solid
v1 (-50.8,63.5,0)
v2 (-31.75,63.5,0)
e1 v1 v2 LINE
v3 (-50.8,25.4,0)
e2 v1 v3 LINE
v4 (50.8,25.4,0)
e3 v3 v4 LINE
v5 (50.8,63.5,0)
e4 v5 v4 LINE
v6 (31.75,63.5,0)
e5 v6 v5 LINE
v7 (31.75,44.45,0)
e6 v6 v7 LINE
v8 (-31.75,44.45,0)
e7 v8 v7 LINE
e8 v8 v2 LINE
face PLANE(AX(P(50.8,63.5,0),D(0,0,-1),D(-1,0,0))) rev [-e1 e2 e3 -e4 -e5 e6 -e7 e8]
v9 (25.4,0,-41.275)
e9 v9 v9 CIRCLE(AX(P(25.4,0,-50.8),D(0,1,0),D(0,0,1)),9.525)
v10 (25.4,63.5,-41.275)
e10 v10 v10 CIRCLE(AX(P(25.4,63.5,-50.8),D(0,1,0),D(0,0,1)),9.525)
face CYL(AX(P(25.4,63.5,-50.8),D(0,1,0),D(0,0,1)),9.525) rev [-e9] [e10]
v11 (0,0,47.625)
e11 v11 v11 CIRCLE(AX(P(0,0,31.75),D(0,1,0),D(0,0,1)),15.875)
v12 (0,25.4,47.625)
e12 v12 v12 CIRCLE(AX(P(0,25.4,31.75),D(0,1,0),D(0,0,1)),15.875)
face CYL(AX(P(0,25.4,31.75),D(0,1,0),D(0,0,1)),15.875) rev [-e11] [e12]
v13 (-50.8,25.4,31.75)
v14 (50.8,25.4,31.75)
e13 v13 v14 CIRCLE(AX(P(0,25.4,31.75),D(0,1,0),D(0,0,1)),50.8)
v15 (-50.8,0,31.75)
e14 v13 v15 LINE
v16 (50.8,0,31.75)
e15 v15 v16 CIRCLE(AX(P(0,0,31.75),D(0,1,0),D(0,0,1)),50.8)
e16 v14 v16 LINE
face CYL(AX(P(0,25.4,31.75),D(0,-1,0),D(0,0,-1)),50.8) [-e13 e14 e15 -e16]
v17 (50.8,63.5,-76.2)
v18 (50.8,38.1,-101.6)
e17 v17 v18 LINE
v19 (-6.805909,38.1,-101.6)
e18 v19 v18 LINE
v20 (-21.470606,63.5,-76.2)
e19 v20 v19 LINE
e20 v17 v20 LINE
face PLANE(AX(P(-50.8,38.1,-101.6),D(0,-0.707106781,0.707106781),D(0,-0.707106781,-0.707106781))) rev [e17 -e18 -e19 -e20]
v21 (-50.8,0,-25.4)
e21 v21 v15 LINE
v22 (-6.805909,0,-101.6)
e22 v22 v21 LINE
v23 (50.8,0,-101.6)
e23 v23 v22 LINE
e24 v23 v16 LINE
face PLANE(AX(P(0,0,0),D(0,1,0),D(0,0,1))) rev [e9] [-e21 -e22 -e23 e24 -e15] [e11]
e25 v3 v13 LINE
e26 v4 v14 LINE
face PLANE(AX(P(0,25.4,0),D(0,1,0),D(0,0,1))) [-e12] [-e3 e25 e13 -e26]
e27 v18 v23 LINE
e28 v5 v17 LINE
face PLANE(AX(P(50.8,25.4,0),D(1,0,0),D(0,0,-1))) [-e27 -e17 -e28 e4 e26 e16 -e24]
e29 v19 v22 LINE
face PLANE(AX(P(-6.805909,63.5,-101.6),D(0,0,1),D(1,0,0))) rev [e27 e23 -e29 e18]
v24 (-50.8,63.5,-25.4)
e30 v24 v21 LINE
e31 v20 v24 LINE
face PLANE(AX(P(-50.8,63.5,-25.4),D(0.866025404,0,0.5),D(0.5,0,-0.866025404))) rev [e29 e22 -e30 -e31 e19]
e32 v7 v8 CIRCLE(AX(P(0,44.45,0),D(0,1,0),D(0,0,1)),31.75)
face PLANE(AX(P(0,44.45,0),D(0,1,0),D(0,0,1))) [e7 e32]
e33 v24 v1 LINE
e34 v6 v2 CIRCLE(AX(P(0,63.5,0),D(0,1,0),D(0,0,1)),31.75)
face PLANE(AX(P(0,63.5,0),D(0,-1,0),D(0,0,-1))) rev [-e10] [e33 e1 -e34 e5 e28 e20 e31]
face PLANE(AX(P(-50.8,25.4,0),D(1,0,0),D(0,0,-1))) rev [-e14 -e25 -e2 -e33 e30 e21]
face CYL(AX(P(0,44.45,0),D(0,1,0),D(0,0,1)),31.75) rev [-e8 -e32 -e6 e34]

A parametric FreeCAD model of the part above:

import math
import FreeCAD as App
import Part
import Sketcher
from FreeCAD import Vector
Q = App.Units.Quantity


def add_polygon(sketch, points):
    """Adds a closed chain of lines whose ends are joined by coincident constraints."""
    first, n = sketch.GeometryCount, len(points)
    for a, b in zip(points, points[1:] + points[:1]):
        sketch.addGeometry(Part.LineSegment(App.Vector(*a, 0), App.Vector(*b, 0)), False)
    for i in range(n):
        sketch.addConstraint(Sketcher.Constraint("Coincident", first + i, 2, first + (i + 1) % n, 1))

doc = App.newDocument("Part")
body = doc.addObject("PartDesign::Body", "Body")

# Sketch on XZ plane
sketch1 = body.newObject("Sketcher::SketchObject", "Sketch")
sketch1.AttachmentSupport = (doc.getObject("XZ_Plane"), [""])
sketch1.MapMode = "FlatFace"
sketch1.addGeometry([
    Part.LineSegment(Vector(-51, 0, 0), Vector(-51, 32, 0)),
    Part.ArcOfCircle(Part.Circle(Vector(0, 32, 0), Vector(0, 0, 1), 51), math.radians(0), math.radians(180)),
    Part.LineSegment(Vector(51, 32, 0), Vector(51, 0, 0)),
    Part.LineSegment(Vector(51, 0, 0), Vector(-51, 0, 0)),
], False)
sketch1.addConstraint([
    Sketcher.Constraint("Tangent", 0, 2, 1, 2),
    Sketcher.Constraint("Tangent", 1, 1, 2, 1),
    Sketcher.Constraint("Coincident", 2, 2, 3, 1),
    Sketcher.Constraint("Coincident", 3, 2, 0, 1),
    Sketcher.Constraint("Vertical", 0),
    Sketcher.Constraint("Vertical", 2),
    Sketcher.Constraint("Horizontal", 3),
    Sketcher.Constraint("Symmetric", 2, 2, 3, 2, -1, 1),
    Sketcher.Constraint("Radius", 1, Q("2 in")),
    Sketcher.Constraint("DistanceY", 0, 1, 0, 2, Q("1.25 in")),
])
pad1 = body.newObject("PartDesign::Pad", "Pad")
pad1.Profile = sketch1
pad1.Length = Q("1 in")
pad1.Reversed = True

# Sketch on XZ plane
sketch2 = body.newObject("Sketcher::SketchObject", "Sketch001")
sketch2.AttachmentSupport = (doc.getObject("XZ_Plane"), [""])
sketch2.MapMode = "FlatFace"
add_polygon(sketch2, [(-51, -25), (-51, 0), (51, 0), (51, -102), (-7, -102)])  # lines 0-4
sketch2.addConstraint([
    Sketcher.Constraint("Vertical", 0),
    Sketcher.Constraint("Horizontal", 1),
    Sketcher.Constraint("Vertical", 2),
    Sketcher.Constraint("Horizontal", 3),
    Sketcher.Constraint("Symmetric", 0, 2, 1, 2, -1, 1),
    Sketcher.Constraint("Equal", 1, 2),
    Sketcher.Constraint("DistanceX", 1, 1, 1, 2, Q("4 in")),
    Sketcher.Constraint("DistanceY", 0, 1, 0, 2, Q("1 in")),
    Sketcher.Constraint("Angle", 4, Q("120 deg")),
])
pad2 = body.newObject("PartDesign::Pad", "Pad001")
pad2.Profile = sketch2
pad2.Length = Q("2.5 in")
pad2.Reversed = True

# Sketch on YZ plane
sketch3 = body.newObject("Sketcher::SketchObject", "Sketch002")
sketch3.AttachmentSupport = (doc.getObject("YZ_Plane"), [""])
sketch3.MapMode = "FlatFace"
add_polygon(sketch3, [(64, -102), (64, -76), (38, -102)])  # lines 0-2
sketch3.addConstraint([
    Sketcher.Constraint("Vertical", 0),
    Sketcher.Constraint("Horizontal", 2),
    Sketcher.Constraint("Equal", 2, 0),
    Sketcher.Constraint("DistanceX", 2, 1, 2, 2, Q("1 in")),
    Sketcher.Constraint("DistanceY", 0, 2, -1, 1, Q("3 in")),
    Sketcher.Constraint("DistanceX", -1, 1, 0, 2, Q("2.5 in")),
])
pocket1 = body.newObject("PartDesign::Pocket", "Pocket")
pocket1.Profile = sketch3
pocket1.Type = "ThroughAll"
pocket1.Midplane = True

# Sketch on XZ plane
sketch4 = body.newObject("Sketcher::SketchObject", "Sketch003")
sketch4.AttachmentSupport = (doc.getObject("XZ_Plane"), [""])
sketch4.MapMode = "FlatFace"
sketch4.AttachmentOffset = App.Placement(Vector(0, 0, -2.5 * 25.4), App.Rotation())
sketch4.addGeometry(Part.Circle(Vector(25, -51, 0), Vector(0, 0, 1), 10), False)
sketch4.addConstraint([
    Sketcher.Constraint("Diameter", 0, Q("0.75 in")),
    Sketcher.Constraint("DistanceX", -1, 1, 0, 3, Q("1 in")),
    Sketcher.Constraint("DistanceY", 0, 3, -1, 1, Q("2 in")),
])
doc.recompute()
hole = body.newObject("PartDesign::Hole", "Hole")
hole.Profile = sketch4
hole.ThreadType = "None"
hole.Diameter = Q("0.75 in")
hole.DepthType = "ThroughAll"
hole.Reversed = True

# Sketch on XZ plane
sketch5 = body.newObject("Sketcher::SketchObject", "Sketch004")
sketch5.AttachmentSupport = (doc.getObject("XZ_Plane"), [""])
sketch5.MapMode = "FlatFace"
sketch5.AttachmentOffset = App.Placement(Vector(0, 0, -2.5 * 25.4), App.Rotation())
sketch5.addGeometry(Part.Circle(Vector(0, 0, 0), Vector(0, 0, 1), 32), False)
sketch5.addConstraint([
    Sketcher.Constraint("Coincident", 0, 3, -1, 1),
    Sketcher.Constraint("Diameter", 0, Q("2.5 in")),
])
pocket2 = body.newObject("PartDesign::Pocket", "Pocket001")
pocket2.Profile = sketch5
pocket2.Length = Q("0.75 in")
pocket2.Reversed = True

# Sketch on XZ plane
sketch6 = body.newObject("Sketcher::SketchObject", "Sketch005")
sketch6.AttachmentSupport = (doc.getObject("XZ_Plane"), [""])
sketch6.MapMode = "FlatFace"
sketch6.AttachmentOffset = App.Placement(Vector(0, 0, -1 * 25.4), App.Rotation())
sketch6.addGeometry(Part.Circle(Vector(0, 32, 0), Vector(0, 0, 1), 16), False)
sketch6.addConstraint([
    Sketcher.Constraint("PointOnObject", 0, 3, -2),
    Sketcher.Constraint("Diameter", 0, Q("1.25 in")),
    Sketcher.Constraint("DistanceY", -1, 1, 0, 3, Q("1.25 in")),
])
doc.recompute()
hole2 = body.newObject("PartDesign::Hole", "Hole001")
hole2.Profile = sketch6
hole2.ThreadType = "None"
hole2.Diameter = Q("1.25 in")
hole2.DepthType = "ThroughAll"
hole2.Reversed = True

doc.recompute()
